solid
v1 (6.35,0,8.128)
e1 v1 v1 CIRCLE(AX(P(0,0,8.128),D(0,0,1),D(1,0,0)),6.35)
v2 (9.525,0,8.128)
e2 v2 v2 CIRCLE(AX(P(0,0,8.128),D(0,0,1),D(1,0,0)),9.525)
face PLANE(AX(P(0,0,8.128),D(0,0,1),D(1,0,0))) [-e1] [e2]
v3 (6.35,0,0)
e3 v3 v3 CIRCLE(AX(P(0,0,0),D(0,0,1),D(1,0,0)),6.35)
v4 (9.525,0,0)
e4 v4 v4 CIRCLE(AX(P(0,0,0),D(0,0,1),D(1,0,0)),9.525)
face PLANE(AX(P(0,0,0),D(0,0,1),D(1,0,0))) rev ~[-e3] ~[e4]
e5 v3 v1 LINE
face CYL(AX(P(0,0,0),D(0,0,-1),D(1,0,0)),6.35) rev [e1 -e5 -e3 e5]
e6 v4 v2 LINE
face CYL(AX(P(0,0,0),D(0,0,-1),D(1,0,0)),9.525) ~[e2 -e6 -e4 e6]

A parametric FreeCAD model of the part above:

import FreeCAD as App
import Part
import Sketcher

V = App.Vector
Q = App.Units.Quantity

doc = App.newDocument("Part")
body = doc.addObject("PartDesign::Body", "Body")

sketch1 = body.newObject("Sketcher::SketchObject", "Sketch")
sketch1.AttachmentSupport = (doc.getObject("XY_Plane"), [""])
sketch1.MapMode = "FlatFace"
sketch1.addGeometry(Part.Circle(V(0, 0, 0), V(0, 0, 1), 10), False)
sketch1.addGeometry(Part.Circle(V(0, 0, 0), V(0, 0, 1), 6), False)
sketch1.addConstraint(Sketcher.Constraint("Coincident", 0, 3, -1, 1))
sketch1.addConstraint(Sketcher.Constraint("Coincident", 1, 3, -1, 1))
sketch1.addConstraint(Sketcher.Constraint("Diameter", 1, Q("0.5 in")))
sketch1.addConstraint(Sketcher.Constraint("Diameter", 0, Q("0.75 in")))
pad1 = body.newObject("PartDesign::Pad", "Pad")
pad1.Profile = sketch1
pad1.Length = Q("0.32 in")

doc.recompute()
